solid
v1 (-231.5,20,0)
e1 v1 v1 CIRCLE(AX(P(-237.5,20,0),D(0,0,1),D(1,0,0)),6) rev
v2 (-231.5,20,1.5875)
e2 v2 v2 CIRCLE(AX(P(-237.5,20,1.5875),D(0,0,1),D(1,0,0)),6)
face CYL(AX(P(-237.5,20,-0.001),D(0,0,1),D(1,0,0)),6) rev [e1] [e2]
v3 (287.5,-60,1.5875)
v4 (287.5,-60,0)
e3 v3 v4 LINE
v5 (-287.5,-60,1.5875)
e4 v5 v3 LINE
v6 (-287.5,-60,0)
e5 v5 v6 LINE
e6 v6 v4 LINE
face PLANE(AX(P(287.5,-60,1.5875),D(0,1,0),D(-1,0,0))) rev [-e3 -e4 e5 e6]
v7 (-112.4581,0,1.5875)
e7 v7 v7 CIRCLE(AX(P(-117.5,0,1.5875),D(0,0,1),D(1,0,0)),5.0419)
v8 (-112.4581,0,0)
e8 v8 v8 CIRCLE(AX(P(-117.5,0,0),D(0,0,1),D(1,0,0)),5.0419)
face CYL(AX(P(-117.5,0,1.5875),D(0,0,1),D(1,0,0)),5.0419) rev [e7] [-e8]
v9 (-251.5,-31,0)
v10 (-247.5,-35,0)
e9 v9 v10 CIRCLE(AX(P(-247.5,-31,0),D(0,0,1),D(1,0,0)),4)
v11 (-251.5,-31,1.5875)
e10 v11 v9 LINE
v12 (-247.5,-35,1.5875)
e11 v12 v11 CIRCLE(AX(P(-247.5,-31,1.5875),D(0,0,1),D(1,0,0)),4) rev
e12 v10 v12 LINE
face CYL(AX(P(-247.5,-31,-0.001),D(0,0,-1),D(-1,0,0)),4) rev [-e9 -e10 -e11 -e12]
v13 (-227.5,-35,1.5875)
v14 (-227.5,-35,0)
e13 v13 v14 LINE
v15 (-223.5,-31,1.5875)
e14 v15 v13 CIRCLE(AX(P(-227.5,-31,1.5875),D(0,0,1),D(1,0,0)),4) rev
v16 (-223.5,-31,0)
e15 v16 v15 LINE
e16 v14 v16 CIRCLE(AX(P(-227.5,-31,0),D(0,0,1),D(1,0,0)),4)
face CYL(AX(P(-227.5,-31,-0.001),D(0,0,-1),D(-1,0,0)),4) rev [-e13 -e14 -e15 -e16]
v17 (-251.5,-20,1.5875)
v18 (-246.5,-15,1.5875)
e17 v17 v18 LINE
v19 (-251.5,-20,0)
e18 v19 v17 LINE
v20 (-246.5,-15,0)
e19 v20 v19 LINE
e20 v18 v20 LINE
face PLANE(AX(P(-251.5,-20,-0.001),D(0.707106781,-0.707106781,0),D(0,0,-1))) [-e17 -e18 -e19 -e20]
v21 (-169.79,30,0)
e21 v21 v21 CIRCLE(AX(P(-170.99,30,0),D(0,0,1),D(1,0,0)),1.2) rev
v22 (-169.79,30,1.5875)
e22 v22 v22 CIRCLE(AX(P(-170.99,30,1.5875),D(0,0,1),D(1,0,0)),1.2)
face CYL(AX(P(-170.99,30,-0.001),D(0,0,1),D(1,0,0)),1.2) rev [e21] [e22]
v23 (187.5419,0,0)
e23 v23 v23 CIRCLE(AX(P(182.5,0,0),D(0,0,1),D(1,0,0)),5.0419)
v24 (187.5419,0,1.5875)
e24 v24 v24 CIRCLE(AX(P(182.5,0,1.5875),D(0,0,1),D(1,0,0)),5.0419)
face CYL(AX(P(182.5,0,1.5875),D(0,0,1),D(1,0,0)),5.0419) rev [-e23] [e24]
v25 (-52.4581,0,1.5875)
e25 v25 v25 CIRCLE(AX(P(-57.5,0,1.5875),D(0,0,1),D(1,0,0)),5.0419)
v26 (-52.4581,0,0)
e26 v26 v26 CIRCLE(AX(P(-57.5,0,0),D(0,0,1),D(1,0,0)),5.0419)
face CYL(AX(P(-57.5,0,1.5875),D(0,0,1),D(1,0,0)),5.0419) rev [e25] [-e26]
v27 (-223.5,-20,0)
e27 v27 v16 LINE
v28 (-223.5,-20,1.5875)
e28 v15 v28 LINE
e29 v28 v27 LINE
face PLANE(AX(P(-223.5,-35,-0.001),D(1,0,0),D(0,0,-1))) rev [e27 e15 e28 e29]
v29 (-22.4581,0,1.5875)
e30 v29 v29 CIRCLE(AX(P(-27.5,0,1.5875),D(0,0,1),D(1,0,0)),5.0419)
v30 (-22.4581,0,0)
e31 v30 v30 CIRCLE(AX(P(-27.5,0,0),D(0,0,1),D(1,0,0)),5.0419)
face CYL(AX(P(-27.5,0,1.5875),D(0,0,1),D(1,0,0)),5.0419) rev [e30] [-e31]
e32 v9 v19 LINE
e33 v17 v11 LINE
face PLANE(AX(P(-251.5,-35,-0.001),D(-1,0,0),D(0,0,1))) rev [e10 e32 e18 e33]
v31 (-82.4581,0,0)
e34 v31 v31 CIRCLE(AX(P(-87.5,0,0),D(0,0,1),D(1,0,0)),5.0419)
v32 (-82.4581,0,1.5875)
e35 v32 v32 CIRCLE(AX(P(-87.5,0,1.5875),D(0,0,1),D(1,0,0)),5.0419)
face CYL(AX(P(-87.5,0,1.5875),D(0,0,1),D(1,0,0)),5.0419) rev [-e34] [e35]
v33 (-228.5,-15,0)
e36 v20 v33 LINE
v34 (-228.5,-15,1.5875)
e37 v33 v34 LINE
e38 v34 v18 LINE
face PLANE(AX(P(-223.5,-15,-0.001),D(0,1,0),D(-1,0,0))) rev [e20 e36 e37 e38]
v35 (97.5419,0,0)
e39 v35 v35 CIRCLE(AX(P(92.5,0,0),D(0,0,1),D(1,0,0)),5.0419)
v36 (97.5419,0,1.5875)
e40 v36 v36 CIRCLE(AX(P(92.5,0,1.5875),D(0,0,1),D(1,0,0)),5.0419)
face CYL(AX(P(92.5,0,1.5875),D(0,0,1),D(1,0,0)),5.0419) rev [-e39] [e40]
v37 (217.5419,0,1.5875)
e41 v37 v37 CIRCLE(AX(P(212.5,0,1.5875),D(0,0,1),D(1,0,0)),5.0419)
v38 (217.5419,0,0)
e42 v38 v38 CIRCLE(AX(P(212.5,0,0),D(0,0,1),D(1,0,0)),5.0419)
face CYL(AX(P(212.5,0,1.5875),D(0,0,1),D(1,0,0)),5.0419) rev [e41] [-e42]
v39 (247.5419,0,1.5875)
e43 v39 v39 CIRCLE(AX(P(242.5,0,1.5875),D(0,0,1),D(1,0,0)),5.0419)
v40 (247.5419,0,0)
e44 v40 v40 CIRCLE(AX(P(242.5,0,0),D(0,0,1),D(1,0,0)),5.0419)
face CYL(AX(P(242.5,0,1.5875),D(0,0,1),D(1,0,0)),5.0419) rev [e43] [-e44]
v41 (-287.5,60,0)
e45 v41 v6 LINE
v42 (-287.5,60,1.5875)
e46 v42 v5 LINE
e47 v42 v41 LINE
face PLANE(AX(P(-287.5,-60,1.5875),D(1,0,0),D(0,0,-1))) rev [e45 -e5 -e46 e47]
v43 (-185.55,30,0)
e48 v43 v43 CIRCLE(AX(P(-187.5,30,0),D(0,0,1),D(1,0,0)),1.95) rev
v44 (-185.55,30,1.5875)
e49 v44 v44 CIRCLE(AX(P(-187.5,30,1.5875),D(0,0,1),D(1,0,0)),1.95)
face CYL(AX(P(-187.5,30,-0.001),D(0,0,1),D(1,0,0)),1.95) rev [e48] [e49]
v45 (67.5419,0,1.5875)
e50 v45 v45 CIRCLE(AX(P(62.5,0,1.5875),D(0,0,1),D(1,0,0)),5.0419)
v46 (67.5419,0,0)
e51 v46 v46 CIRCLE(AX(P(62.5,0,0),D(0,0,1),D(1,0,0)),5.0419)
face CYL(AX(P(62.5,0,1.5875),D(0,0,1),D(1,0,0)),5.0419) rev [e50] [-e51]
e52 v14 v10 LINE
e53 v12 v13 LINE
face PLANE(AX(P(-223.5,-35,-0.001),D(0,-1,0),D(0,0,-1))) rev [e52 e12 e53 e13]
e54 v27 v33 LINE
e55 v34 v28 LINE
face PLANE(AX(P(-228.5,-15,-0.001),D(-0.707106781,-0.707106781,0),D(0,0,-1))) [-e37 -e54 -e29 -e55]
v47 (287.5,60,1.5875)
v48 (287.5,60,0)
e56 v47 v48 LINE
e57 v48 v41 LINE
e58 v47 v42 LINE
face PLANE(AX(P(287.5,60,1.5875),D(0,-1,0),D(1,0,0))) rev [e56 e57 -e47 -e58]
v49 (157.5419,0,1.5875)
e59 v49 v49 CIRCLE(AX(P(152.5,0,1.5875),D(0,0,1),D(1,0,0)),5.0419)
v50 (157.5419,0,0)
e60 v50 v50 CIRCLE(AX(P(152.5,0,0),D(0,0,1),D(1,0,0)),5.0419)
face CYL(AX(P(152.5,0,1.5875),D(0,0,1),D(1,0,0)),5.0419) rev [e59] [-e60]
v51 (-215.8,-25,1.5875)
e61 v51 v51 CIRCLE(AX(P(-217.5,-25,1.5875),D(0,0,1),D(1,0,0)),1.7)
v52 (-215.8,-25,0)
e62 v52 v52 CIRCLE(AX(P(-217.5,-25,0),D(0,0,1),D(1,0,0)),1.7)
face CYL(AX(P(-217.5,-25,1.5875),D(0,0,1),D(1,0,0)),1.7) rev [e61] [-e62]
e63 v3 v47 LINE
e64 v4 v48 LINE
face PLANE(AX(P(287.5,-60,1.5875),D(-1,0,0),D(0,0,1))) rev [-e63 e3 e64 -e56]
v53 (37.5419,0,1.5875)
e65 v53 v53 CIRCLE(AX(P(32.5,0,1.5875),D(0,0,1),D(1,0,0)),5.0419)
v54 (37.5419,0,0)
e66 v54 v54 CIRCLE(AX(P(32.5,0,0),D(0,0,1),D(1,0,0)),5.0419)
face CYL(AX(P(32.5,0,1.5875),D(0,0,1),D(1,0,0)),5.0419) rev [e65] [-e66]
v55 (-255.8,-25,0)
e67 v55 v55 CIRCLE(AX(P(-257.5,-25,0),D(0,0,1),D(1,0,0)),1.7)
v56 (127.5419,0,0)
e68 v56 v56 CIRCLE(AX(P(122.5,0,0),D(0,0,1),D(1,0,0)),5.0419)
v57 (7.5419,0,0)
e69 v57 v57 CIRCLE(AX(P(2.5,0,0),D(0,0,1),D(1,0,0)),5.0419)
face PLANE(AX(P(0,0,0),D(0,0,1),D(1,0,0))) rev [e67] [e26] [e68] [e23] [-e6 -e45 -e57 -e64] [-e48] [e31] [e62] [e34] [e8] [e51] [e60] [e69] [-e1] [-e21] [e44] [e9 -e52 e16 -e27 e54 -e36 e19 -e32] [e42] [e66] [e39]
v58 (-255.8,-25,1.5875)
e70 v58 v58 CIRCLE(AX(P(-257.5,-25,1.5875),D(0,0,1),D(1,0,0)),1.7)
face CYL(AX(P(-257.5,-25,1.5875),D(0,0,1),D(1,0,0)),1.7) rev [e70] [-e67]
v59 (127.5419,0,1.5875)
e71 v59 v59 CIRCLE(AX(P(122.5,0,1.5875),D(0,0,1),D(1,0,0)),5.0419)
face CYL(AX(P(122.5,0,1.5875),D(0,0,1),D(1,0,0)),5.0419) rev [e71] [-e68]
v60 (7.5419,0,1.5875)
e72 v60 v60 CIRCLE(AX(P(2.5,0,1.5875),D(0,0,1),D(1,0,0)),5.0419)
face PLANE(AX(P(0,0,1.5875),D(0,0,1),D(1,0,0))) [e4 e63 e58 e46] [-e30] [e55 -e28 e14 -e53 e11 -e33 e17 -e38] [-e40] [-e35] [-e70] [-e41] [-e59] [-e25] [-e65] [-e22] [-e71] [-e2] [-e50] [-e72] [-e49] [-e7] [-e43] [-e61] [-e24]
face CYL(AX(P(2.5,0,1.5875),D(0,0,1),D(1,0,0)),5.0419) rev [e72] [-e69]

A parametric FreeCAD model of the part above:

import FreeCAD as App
import Part
import Sketcher


def edges_at(feature, points):
    """Names of the edges that pass closest to the given points."""
    edges = feature.Shape.Edges
    near = lambda p: min(range(len(edges)), key=lambda i: edges[i].distToShape(Part.Vertex(*p))[0])
    return sorted({f"Edge{near(p) + 1}" for p in points})

doc = App.newDocument("Part")
body = doc.addObject("PartDesign::Body", "Body")

# Sketch on XY plane
sketch1 = body.newObject("Sketcher::SketchObject", "Sketch")
sketch1.AttachmentSupport = (doc.getObject("XY_Plane"), [""])
sketch1.MapMode = "FlatFace"
sketch1.addGeometry([
    Part.LineSegment(App.Vector(-288, 60, 0), App.Vector(-288, -60, 0)),
    Part.LineSegment(App.Vector(-288, -60, 0), App.Vector(288, -60, 0)),
    Part.LineSegment(App.Vector(288, -60, 0), App.Vector(288, 60, 0)),
    Part.LineSegment(App.Vector(288, 60, 0), App.Vector(-288, 60, 0)),
], False)
sketch1.addConstraint([
    Sketcher.Constraint("Coincident", 0, 2, 1, 1),
    Sketcher.Constraint("Coincident", 1, 2, 2, 1),
    Sketcher.Constraint("Coincident", 2, 2, 3, 1),
    Sketcher.Constraint("Coincident", 3, 2, 0, 1),
    Sketcher.Constraint("Vertical", 0),
    Sketcher.Constraint("Horizontal", 1),
    Sketcher.Constraint("Vertical", 2),
    Sketcher.Constraint("Horizontal", 3),
    Sketcher.Constraint("Symmetric", 0, 2, 2, 2, -1, 1),
    Sketcher.Constraint("DistanceX", 1, 1, 1, 2, 575.0),
    Sketcher.Constraint("DistanceY", 0, 2, 0, 1, 120.0),
])
pad1 = body.newObject("PartDesign::Pad", "Pad")
pad1.Profile = sketch1
pad1.Length = 1.5875

# Sketch on XY plane
sketch2 = body.newObject("Sketcher::SketchObject", "Sketch001")
sketch2.AttachmentSupport = (doc.getObject("XY_Plane"), [""])
sketch2.MapMode = "FlatFace"
sketch2.AttachmentOffset = App.Placement(App.Vector(0, 0, 1.5875), App.Rotation())
sketch2.addGeometry([
    Part.Circle(App.Vector(-257.5, -25, 0), App.Vector(0, 0, 1), 1.7),
    Part.Circle(App.Vector(-217.5, -25, 0), App.Vector(0, 0, 1), 1.7),
], False)
sketch2.addConstraint([
    Sketcher.Constraint("Equal", 0, 1),
    Sketcher.Constraint("Horizontal", 0, 3, 1, 3),
    Sketcher.Constraint("Diameter", 0, 3.4),
    Sketcher.Constraint("DistanceY", 0, 3, -1, 1, 25.0),
    Sketcher.Constraint("DistanceX", 0, 3, 1, 3, 40.0),
    Sketcher.Constraint("DistanceX", 0, 3, -1, 1, 257.5),
])
doc.recompute()
hole = body.newObject("PartDesign::Hole", "Hole")
hole.Profile = sketch2
hole.ThreadType = "None"
hole.Diameter = 3.4
hole.DepthType = "ThroughAll"

# Sketch on XY plane
sketch3 = body.newObject("Sketcher::SketchObject", "Sketch002")
sketch3.AttachmentSupport = (doc.getObject("XY_Plane"), [""])
sketch3.MapMode = "FlatFace"
sketch3.AttachmentOffset = App.Placement(App.Vector(0, 0, 1.5875), App.Rotation())
sketch3.addGeometry(Part.Circle(App.Vector(-118, 0, 0), App.Vector(0, 0, 1), 5), False)
sketch3.addConstraint([
    Sketcher.Constraint("PointOnObject", 0, 3, -1),
    Sketcher.Constraint("Diameter", 0, 10.0838),
    Sketcher.Constraint("DistanceX", 0, 3, -1, 1, 117.5),
])
doc.recompute()
hole2 = body.newObject("PartDesign::Hole", "Hole001")
hole2.Profile = sketch3
hole2.ThreadType = "None"
hole2.Diameter = 10.0838
hole2.DepthType = "ThroughAll"
doc.recompute()

linearpattern = body.newObject("PartDesign::LinearPattern", "LinearPattern")
linearpattern.Originals = [hole2]
linearpattern.Direction = (doc.getObject("X_Axis"), [""])
linearpattern.Mode = "offset"
linearpattern.Offset = 30
linearpattern.Occurrences = 13
body.Tip = linearpattern

# Sketch on XY plane
sketch4 = body.newObject("Sketcher::SketchObject", "Sketch003")
sketch4.AttachmentSupport = (doc.getObject("XY_Plane"), [""])
sketch4.MapMode = "FlatFace"
sketch4.AttachmentOffset = App.Placement(App.Vector(0, 0, 1.5875), App.Rotation())
sketch4.addGeometry(Part.Circle(App.Vector(-187.5, 30, 0), App.Vector(0, 0, 1), 1.9), False)
sketch4.addConstraint([
    Sketcher.Constraint("Diameter", 0, 3.9),
    Sketcher.Constraint("DistanceY", -1, 1, 0, 3, 30.0),
    Sketcher.Constraint("DistanceX", 0, 3, -1, 1, 187.5),
])
pocket1 = body.newObject("PartDesign::Pocket", "Pocket")
pocket1.Profile = sketch4
pocket1.Type = "UpToFirst"

# Sketch on XY plane
sketch5 = body.newObject("Sketcher::SketchObject", "Sketch004")
sketch5.AttachmentSupport = (doc.getObject("XY_Plane"), [""])
sketch5.MapMode = "FlatFace"
sketch5.AttachmentOffset = App.Placement(App.Vector(0, 0, 1.5875), App.Rotation())
sketch5.addGeometry(Part.Circle(App.Vector(-171, 30, 0), App.Vector(0, 0, 1), 1.2), False)
sketch5.addConstraint([
    Sketcher.Constraint("Diameter", 0, 2.4),
    Sketcher.Constraint("DistanceY", -1, 1, 0, 3, 30.0),
    Sketcher.Constraint("DistanceX", 0, 3, -1, 1, 170.99),
])
pocket2 = body.newObject("PartDesign::Pocket", "Pocket001")
pocket2.Profile = sketch5
pocket2.Type = "UpToFirst"

# Sketch on XY plane
sketch6 = body.newObject("Sketcher::SketchObject", "Sketch005")
sketch6.AttachmentSupport = (doc.getObject("XY_Plane"), [""])
sketch6.MapMode = "FlatFace"
sketch6.AttachmentOffset = App.Placement(App.Vector(0, 0, 1.5875), App.Rotation())
sketch6.addGeometry([
    Part.LineSegment(App.Vector(-252, -15, 0), App.Vector(-252, -35, 0)),
    Part.LineSegment(App.Vector(-252, -35, 0), App.Vector(-224, -35, 0)),
    Part.LineSegment(App.Vector(-224, -35, 0), App.Vector(-224, -15, 0)),
    Part.LineSegment(App.Vector(-224, -15, 0), App.Vector(-252, -15, 0)),
], False)
sketch6.addConstraint([
    Sketcher.Constraint("Coincident", 0, 2, 1, 1),
    Sketcher.Constraint("Coincident", 1, 2, 2, 1),
    Sketcher.Constraint("Coincident", 2, 2, 3, 1),
    Sketcher.Constraint("Coincident", 3, 2, 0, 1),
    Sketcher.Constraint("Vertical", 0),
    Sketcher.Constraint("Horizontal", 1),
    Sketcher.Constraint("Vertical", 2),
    Sketcher.Constraint("Horizontal", 3),
    Sketcher.Constraint("DistanceX", 1, 1, 1, 2, 28.0),
    Sketcher.Constraint("DistanceY", 0, 2, 0, 1, 20.0),
    Sketcher.Constraint("DistanceY", 0, 2, -1, 1, 35.0),
    Sketcher.Constraint("DistanceX", 0, 2, -1, 1, 251.5),
])
pocket3 = body.newObject("PartDesign::Pocket", "Pocket002")
pocket3.Profile = sketch6
pocket3.Type = "UpToFirst"
doc.recompute()

fillet = body.newObject("PartDesign::Fillet", "Fillet")
fillet.Base = (pocket3, edges_at(pocket3, [(-251.5, -35, 0.794), (-223.5, -35, 0.794)]))
fillet.Radius = 4
doc.recompute()

chamfer = body.newObject("PartDesign::Chamfer", "Chamfer")
chamfer.Base = (fillet, edges_at(fillet, [(-251.5, -15, 0.794), (-223.5, -15, 0.794)]))
chamfer.Size = 5

# Sketch on XY plane
sketch7 = body.newObject("Sketcher::SketchObject", "Sketch006")
sketch7.AttachmentSupport = (doc.getObject("XY_Plane"), [""])
sketch7.MapMode = "FlatFace"
sketch7.AttachmentOffset = App.Placement(App.Vector(0, 0, 1.5875), App.Rotation())
sketch7.addGeometry(Part.Circle(App.Vector(-238, 20, 0), App.Vector(0, 0, 1), 6), False)
sketch7.addConstraint([
    Sketcher.Constraint("Diameter", 0, 12.0),
    Sketcher.Constraint("DistanceY", -1, 1, 0, 3, 20.0),
    Sketcher.Constraint("DistanceX", 0, 3, -1, 1, 237.5),
])
pocket4 = body.newObject("PartDesign::Pocket", "Pocket003")
pocket4.Profile = sketch7
pocket4.Type = "UpToFirst"

doc.recompute()
